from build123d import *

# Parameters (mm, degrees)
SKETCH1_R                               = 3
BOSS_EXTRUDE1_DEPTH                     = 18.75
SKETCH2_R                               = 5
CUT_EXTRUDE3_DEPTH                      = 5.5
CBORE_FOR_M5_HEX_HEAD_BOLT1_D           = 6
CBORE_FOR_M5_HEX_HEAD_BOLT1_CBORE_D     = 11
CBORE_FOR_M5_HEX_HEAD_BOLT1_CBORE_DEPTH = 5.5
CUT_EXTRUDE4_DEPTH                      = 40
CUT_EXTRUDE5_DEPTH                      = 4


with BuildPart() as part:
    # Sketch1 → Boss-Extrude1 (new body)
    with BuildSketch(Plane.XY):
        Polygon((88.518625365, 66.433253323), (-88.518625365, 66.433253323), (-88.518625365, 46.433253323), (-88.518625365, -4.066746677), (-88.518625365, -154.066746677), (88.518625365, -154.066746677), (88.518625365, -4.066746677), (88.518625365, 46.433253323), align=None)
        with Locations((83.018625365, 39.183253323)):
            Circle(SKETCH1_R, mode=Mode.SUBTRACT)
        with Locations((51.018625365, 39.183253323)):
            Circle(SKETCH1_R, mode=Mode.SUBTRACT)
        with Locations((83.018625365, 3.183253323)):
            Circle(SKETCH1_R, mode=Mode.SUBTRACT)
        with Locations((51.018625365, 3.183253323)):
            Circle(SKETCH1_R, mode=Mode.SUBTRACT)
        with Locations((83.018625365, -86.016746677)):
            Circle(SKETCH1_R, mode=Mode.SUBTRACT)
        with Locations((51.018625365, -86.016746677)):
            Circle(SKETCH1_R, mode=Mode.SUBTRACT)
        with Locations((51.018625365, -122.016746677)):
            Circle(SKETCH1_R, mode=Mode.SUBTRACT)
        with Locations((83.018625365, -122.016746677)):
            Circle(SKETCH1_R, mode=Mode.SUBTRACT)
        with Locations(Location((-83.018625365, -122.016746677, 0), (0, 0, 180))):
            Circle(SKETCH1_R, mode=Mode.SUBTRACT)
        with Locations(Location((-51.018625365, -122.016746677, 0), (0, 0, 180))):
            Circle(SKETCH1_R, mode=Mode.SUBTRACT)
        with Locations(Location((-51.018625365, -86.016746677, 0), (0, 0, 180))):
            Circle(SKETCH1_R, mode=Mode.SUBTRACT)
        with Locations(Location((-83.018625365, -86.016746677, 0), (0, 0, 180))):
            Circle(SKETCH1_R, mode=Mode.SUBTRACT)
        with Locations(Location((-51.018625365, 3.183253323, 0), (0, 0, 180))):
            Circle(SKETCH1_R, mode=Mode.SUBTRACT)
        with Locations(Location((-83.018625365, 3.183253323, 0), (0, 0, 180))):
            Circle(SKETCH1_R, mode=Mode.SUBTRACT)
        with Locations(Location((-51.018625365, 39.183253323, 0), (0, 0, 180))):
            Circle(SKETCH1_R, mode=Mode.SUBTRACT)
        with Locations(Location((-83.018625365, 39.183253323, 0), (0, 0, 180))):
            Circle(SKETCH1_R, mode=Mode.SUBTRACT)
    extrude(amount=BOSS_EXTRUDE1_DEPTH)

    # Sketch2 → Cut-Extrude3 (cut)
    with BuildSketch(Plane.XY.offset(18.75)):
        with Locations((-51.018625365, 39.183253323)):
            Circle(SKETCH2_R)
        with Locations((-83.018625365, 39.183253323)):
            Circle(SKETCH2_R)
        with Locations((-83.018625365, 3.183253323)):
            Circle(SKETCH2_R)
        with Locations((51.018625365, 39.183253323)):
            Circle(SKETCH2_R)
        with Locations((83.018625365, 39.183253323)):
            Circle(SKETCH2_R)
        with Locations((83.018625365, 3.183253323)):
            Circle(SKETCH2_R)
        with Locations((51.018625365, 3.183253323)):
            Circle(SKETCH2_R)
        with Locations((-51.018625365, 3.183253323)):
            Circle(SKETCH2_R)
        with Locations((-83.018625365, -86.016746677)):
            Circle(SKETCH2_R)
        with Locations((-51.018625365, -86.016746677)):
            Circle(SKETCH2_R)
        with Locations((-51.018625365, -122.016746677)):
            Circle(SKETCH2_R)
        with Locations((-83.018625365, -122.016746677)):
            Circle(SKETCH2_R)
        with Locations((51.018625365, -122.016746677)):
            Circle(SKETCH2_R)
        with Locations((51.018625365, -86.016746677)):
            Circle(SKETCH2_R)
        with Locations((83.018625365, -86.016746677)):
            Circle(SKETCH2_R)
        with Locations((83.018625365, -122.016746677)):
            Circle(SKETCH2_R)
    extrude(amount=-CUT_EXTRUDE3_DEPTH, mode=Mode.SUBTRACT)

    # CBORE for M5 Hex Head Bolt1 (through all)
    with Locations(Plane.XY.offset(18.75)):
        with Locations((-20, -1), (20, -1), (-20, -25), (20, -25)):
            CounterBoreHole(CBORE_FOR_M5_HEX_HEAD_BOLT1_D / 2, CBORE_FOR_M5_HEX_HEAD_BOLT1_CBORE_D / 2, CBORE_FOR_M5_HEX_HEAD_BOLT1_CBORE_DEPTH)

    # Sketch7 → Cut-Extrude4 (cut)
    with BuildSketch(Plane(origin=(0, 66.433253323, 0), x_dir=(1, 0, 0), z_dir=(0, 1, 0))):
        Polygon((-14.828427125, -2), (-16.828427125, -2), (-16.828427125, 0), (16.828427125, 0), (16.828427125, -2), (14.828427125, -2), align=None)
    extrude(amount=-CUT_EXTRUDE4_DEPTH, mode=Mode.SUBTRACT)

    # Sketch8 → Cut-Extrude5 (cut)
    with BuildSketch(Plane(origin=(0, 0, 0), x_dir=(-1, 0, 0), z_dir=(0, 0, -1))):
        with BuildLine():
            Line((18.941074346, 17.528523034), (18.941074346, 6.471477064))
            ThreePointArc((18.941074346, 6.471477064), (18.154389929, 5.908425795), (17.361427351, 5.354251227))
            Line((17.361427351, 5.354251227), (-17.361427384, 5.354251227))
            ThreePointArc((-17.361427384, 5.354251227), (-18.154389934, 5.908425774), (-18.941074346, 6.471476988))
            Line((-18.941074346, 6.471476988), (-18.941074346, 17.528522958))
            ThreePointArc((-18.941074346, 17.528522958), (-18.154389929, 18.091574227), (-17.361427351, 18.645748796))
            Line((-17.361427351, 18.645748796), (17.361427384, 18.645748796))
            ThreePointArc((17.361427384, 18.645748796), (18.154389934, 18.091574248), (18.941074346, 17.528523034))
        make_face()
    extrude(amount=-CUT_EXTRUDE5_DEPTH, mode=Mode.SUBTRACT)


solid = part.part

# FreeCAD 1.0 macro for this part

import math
import FreeCAD as App
import Part
import Sketcher

V = App.Vector


def add_polygon(sketch, points):
    """Adds a closed chain of lines whose ends are joined by coincident constraints."""
    first, n = sketch.GeometryCount, len(points)
    for a, b in zip(points, points[1:] + points[:1]):
        sketch.addGeometry(Part.LineSegment(App.Vector(*a, 0), App.Vector(*b, 0)), False)
    for i in range(n):
        sketch.addConstraint(Sketcher.Constraint("Coincident", first + i, 2, first + (i + 1) % n, 1))

doc = App.newDocument("Part")
body = doc.addObject("PartDesign::Body", "Body")

sketch1 = doc.addObject("Sketcher::SketchObject", "Sketch")
body.addObject(sketch1)
sketch1.AttachmentSupport = (doc.XY_Plane, [""])
sketch1.MapMode = "FlatFace"
add_polygon(sketch1, [(88.5, 66.4), (-88.5, 66.4), (-88.5, -154.1), (88.5, -154.1)])
sketch1.addGeometry(Part.Circle(V(-83, -122, 0), V(0, 0, 1), 3), False)
sketch1.addGeometry(Part.Circle(V(-51, -122, 0), V(0, 0, 1), 3), False)
sketch1.addGeometry(Part.Circle(V(-83, -86, 0), V(0, 0, 1), 3), False)
sketch1.addGeometry(Part.Circle(V(-51, -86, 0), V(0, 0, 1), 3), False)
sketch1.addGeometry(Part.Circle(V(51, -122, 0), V(0, 0, 1), 3), False)
sketch1.addGeometry(Part.Circle(V(83, -122, 0), V(0, 0, 1), 3), False)
sketch1.addGeometry(Part.Circle(V(51, -86, 0), V(0, 0, 1), 3), False)
sketch1.addGeometry(Part.Circle(V(83, -86, 0), V(0, 0, 1), 3), False)
sketch1.addGeometry(Part.Circle(V(-83, 3.2, 0), V(0, 0, 1), 3), False)
sketch1.addGeometry(Part.Circle(V(-51, 3.2, 0), V(0, 0, 1), 3), False)
sketch1.addGeometry(Part.Circle(V(-83, 39.2, 0), V(0, 0, 1), 3), False)
sketch1.addGeometry(Part.Circle(V(-51, 39.2, 0), V(0, 0, 1), 3), False)
sketch1.addGeometry(Part.Circle(V(51, 3.2, 0), V(0, 0, 1), 3), False)
sketch1.addGeometry(Part.Circle(V(83, 3.2, 0), V(0, 0, 1), 3), False)
sketch1.addGeometry(Part.Circle(V(51, 39.2, 0), V(0, 0, 1), 3), False)
sketch1.addGeometry(Part.Circle(V(83, 39.2, 0), V(0, 0, 1), 3), False)
sketch1.addConstraint([
    Sketcher.Constraint("Horizontal", 0),
    Sketcher.Constraint("Vertical", 1),
    Sketcher.Constraint("Horizontal", 2),
    Sketcher.Constraint("Vertical", 3),
    Sketcher.Constraint("Equal", 4, 5),
    Sketcher.Constraint("Equal", 5, 6),
    Sketcher.Constraint("Equal", 6, 7),
    Sketcher.Constraint("Equal", 7, 8),
    Sketcher.Constraint("Equal", 8, 9),
    Sketcher.Constraint("Equal", 9, 10),
    Sketcher.Constraint("Equal", 10, 11),
    Sketcher.Constraint("Equal", 11, 12),
    Sketcher.Constraint("Equal", 12, 13),
    Sketcher.Constraint("Equal", 13, 14),
    Sketcher.Constraint("Equal", 14, 15),
    Sketcher.Constraint("Equal", 15, 16),
    Sketcher.Constraint("Equal", 16, 17),
    Sketcher.Constraint("Equal", 17, 18),
    Sketcher.Constraint("Equal", 18, 19),
    Sketcher.Constraint("Symmetric", 5, 3, 8, 3, -2),
    Sketcher.Constraint("Symmetric", 4, 3, 9, 3, -2),
    Sketcher.Constraint("Symmetric", 7, 3, 10, 3, -2),
    Sketcher.Constraint("Symmetric", 6, 3, 11, 3, -2),
    Sketcher.Constraint("Symmetric", 13, 3, 16, 3, -2),
    Sketcher.Constraint("Symmetric", 12, 3, 17, 3, -2),
    Sketcher.Constraint("Symmetric", 15, 3, 18, 3, -2),
    Sketcher.Constraint("Symmetric", 14, 3, 19, 3, -2),
    Sketcher.Constraint("Horizontal", 4, 3, 5, 3),
    Sketcher.Constraint("Horizontal", 6, 3, 7, 3),
    Sketcher.Constraint("Horizontal", 12, 3, 13, 3),
    Sketcher.Constraint("Horizontal", 14, 3, 15, 3),
    Sketcher.Constraint("Vertical", 4, 3, 6, 3),
    Sketcher.Constraint("Vertical", 5, 3, 7, 3),
    Sketcher.Constraint("Vertical", 6, 3, 12, 3),
    Sketcher.Constraint("Vertical", 7, 3, 13, 3),
    Sketcher.Constraint("Vertical", 12, 3, 14, 3),
    Sketcher.Constraint("Vertical", 13, 3, 15, 3),
    Sketcher.Constraint("Diameter", 4, 6.0),
    Sketcher.Constraint("DistanceY", 1, 2, 1, 1, 220.5),
    Sketcher.Constraint("DistanceX", 4, 3, 5, 3, 32.0),
    Sketcher.Constraint("DistanceY", 4, 3, 6, 3, 36.0),
    Sketcher.Constraint("DistanceY", 12, 3, 14, 3, 36.0),
    Sketcher.Constraint("DistanceY", 6, 3, 12, 3, 89.2),
    Sketcher.Constraint("DistanceX", 0, 2, 14, 3, 5.5),
    Sketcher.Constraint("DistanceX", 9, 3, 2, 2, 5.5),
    Sketcher.Constraint("DistanceY", 14, 3, 0, 2, 27.25),
    Sketcher.Constraint("DistanceX", 0, 2, 0, 1, 177.037251),
    Sketcher.Constraint("DistanceY", 4, 3, -1, 1, 122.016747),
])
pad1 = doc.addObject("PartDesign::Pad", "Pad")
body.addObject(pad1)
pad1.Profile = sketch1
pad1.Length = 18.75

sketch2 = doc.addObject("Sketcher::SketchObject", "Sketch001")
body.addObject(sketch2)
sketch2.AttachmentSupport = (doc.XY_Plane, [""])
sketch2.MapMode = "FlatFace"
sketch2.AttachmentOffset = App.Placement(V(0, 0, 18.75), App.Rotation())
sketch2.addGeometry([
    Part.Circle(V(-51, 39, 0), V(0, 0, 1), 5),
    Part.Circle(V(-83, 39, 0), V(0, 0, 1), 5),
    Part.Circle(V(-83, 3, 0), V(0, 0, 1), 5),
    Part.Circle(V(51, 39, 0), V(0, 0, 1), 5),
    Part.Circle(V(83, 39, 0), V(0, 0, 1), 5),
    Part.Circle(V(83, 3, 0), V(0, 0, 1), 5),
    Part.Circle(V(51, 3, 0), V(0, 0, 1), 5),
    Part.Circle(V(-51, 3, 0), V(0, 0, 1), 5),
    Part.Circle(V(-83, -86, 0), V(0, 0, 1), 5),
    Part.Circle(V(-51, -86, 0), V(0, 0, 1), 5),
    Part.Circle(V(-51, -122, 0), V(0, 0, 1), 5),
    Part.Circle(V(-83, -122, 0), V(0, 0, 1), 5),
    Part.Circle(V(51, -122, 0), V(0, 0, 1), 5),
    Part.Circle(V(51, -86, 0), V(0, 0, 1), 5),
    Part.Circle(V(83, -86, 0), V(0, 0, 1), 5),
    Part.Circle(V(83, -122, 0), V(0, 0, 1), 5),
], False)
sketch2.addConstraint([
    Sketcher.Constraint("Equal", 0, 1),
    Sketcher.Constraint("Equal", 1, 2),
    Sketcher.Constraint("Equal", 2, 3),
    Sketcher.Constraint("Equal", 3, 4),
    Sketcher.Constraint("Equal", 4, 5),
    Sketcher.Constraint("Equal", 5, 6),
    Sketcher.Constraint("Equal", 6, 7),
    Sketcher.Constraint("Equal", 7, 8),
    Sketcher.Constraint("Equal", 8, 9),
    Sketcher.Constraint("Equal", 9, 10),
    Sketcher.Constraint("Equal", 10, 11),
    Sketcher.Constraint("Equal", 11, 12),
    Sketcher.Constraint("Equal", 12, 13),
    Sketcher.Constraint("Equal", 13, 14),
    Sketcher.Constraint("Equal", 14, 15),
    Sketcher.Constraint("Symmetric", 0, 3, 3, 3, -2),
    Sketcher.Constraint("Symmetric", 1, 3, 4, 3, -2),
    Sketcher.Constraint("Symmetric", 2, 3, 5, 3, -2),
    Sketcher.Constraint("Symmetric", 6, 3, 7, 3, -2),
    Sketcher.Constraint("Symmetric", 10, 3, 12, 3, -2),
    Sketcher.Constraint("Symmetric", 9, 3, 13, 3, -2),
    Sketcher.Constraint("Symmetric", 8, 3, 14, 3, -2),
    Sketcher.Constraint("Symmetric", 11, 3, 15, 3, -2),
    Sketcher.Constraint("Horizontal", 0, 3, 1, 3),
    Sketcher.Constraint("Horizontal", 5, 3, 6, 3),
    Sketcher.Constraint("Horizontal", 8, 3, 9, 3),
    Sketcher.Constraint("Horizontal", 10, 3, 11, 3),
    Sketcher.Constraint("Vertical", 1, 3, 2, 3),
    Sketcher.Constraint("Vertical", 3, 3, 6, 3),
    Sketcher.Constraint("Vertical", 2, 3, 8, 3),
    Sketcher.Constraint("Vertical", 7, 3, 9, 3),
    Sketcher.Constraint("Vertical", 9, 3, 10, 3),
    Sketcher.Constraint("Vertical", 8, 3, 11, 3),
    Sketcher.Constraint("Diameter", 0, 10.0),
    Sketcher.Constraint("DistanceX", 1, 3, 0, 3, 32.0),
    Sketcher.Constraint("DistanceY", 2, 3, 1, 3, 36.0),
    Sketcher.Constraint("DistanceY", 10, 3, 9, 3, 36.0),
    Sketcher.Constraint("DistanceY", 8, 3, 2, 3, 89.2),
    Sketcher.Constraint("DistanceX", 0, 3, 3, 3, 102.037251),
    Sketcher.Constraint("DistanceY", -1, 1, 0, 3, 39.183253),
])
pocket1 = doc.addObject("PartDesign::Pocket", "Pocket")
body.addObject(pocket1)
pocket1.Profile = sketch2
pocket1.Length = 5.5

sketch3 = doc.addObject("Sketcher::SketchObject", "Sketch002")
body.addObject(sketch3)
sketch3.AttachmentSupport = (doc.XY_Plane, [""])
sketch3.MapMode = "FlatFace"
sketch3.AttachmentOffset = App.Placement(V(0, 0, 18.75), App.Rotation())
sketch3.addGeometry([
    Part.Circle(V(-20, -1, 0), V(0, 0, 1), 3),
    Part.Circle(V(20, -1, 0), V(0, 0, 1), 3),
    Part.Circle(V(-20, -25, 0), V(0, 0, 1), 3),
    Part.Circle(V(20, -25, 0), V(0, 0, 1), 3),
], False)
sketch3.addConstraint([
    Sketcher.Constraint("Equal", 0, 1),
    Sketcher.Constraint("Equal", 1, 2),
    Sketcher.Constraint("Equal", 2, 3),
    Sketcher.Constraint("Symmetric", 0, 3, 1, 3, -2),
    Sketcher.Constraint("Symmetric", 2, 3, 3, 3, -2),
    Sketcher.Constraint("Vertical", 0, 3, 2, 3),
    Sketcher.Constraint("Diameter", 0, 6.0),
    Sketcher.Constraint("DistanceX", 0, 3, -1, 1, 20.0),
    Sketcher.Constraint("DistanceY", 0, 3, -1, 1, 1.0),
    Sketcher.Constraint("DistanceY", 2, 3, -1, 1, 25.0),
])
doc.recompute()
hole = doc.addObject("PartDesign::Hole", "Hole")
body.addObject(hole)
hole.Profile = sketch3
hole.ThreadType = "None"
hole.Diameter = 6
hole.DepthType = "ThroughAll"
hole.HoleCutType = "Counterbore"
hole.HoleCutDiameter = 11
hole.HoleCutDepth = 5.5

sketch4 = doc.addObject("Sketcher::SketchObject", "Sketch003")
body.addObject(sketch4)
sketch4.AttachmentSupport = (doc.XZ_Plane, [""])
sketch4.MapMode = "FlatFace"
sketch4.AttachmentOffset = App.Placement(V(0, 0, -66.433253), App.Rotation())
add_polygon(sketch4, [(-16.8, 2), (16.8, 2), (16.8, 0), (-16.8, 0)])
sketch4.addConstraint([
    Sketcher.Constraint("Horizontal", 0),
    Sketcher.Constraint("Vertical", 1),
    Sketcher.Constraint("Horizontal", 2),
    Sketcher.Constraint("Vertical", 3),
    Sketcher.Constraint("Symmetric", 1, 2, 2, 2, -1, 1),
    Sketcher.Constraint("DistanceY", 1, 2, 1, 1, 2.0),
    Sketcher.Constraint("DistanceX", 0, 1, 0, 2, 33.656854),
])
pocket2 = doc.addObject("PartDesign::Pocket", "Pocket001")
body.addObject(pocket2)
pocket2.Profile = sketch4
pocket2.Length = 40
pocket2.Reversed = True

sketch5 = doc.addObject("Sketcher::SketchObject", "Sketch004")
body.addObject(sketch5)
sketch5.AttachmentSupport = (doc.XY_Plane, [""])
sketch5.MapMode = "FlatFace"
sketch5.addGeometry([
    Part.LineSegment(V(-18.9, 6.5, 0), V(-18.9, 17.5, 0)),
    Part.ArcOfCircle(Part.Circle(V(31.6, -52.2, 0), V(0, 0, 1), 86.1), math.radians(124.63), math.radians(125.91)),
    Part.LineSegment(V(-17.4, 18.6, 0), V(17.4, 18.6, 0)),
    Part.ArcOfCircle(Part.Circle(V(-31.6, -52.2, 0), V(0, 0, 1), 86.1), math.radians(54.09), math.radians(55.37)),
    Part.LineSegment(V(18.9, 17.5, 0), V(18.9, 6.5, 0)),
    Part.ArcOfCircle(Part.Circle(V(-31.6, 76.2, 0), V(0, 0, 1), 86.1), math.radians(-55.37), math.radians(-54.09)),
    Part.LineSegment(V(17.4, 5.4, 0), V(-17.4, 5.4, 0)),
    Part.ArcOfCircle(Part.Circle(V(31.6, 76.2, 0), V(0, 0, 1), 86.1), math.radians(-125.91), math.radians(-124.63)),
], False)
sketch5.addConstraint([
    Sketcher.Constraint("Coincident", 0, 2, 1, 2),
    Sketcher.Constraint("Coincident", 1, 1, 2, 1),
    Sketcher.Constraint("Coincident", 2, 2, 3, 2),
    Sketcher.Constraint("Coincident", 3, 1, 4, 1),
    Sketcher.Constraint("Coincident", 4, 2, 5, 2),
    Sketcher.Constraint("Coincident", 5, 1, 6, 1),
    Sketcher.Constraint("Coincident", 6, 2, 7, 2),
    Sketcher.Constraint("Coincident", 7, 1, 0, 1),
    Sketcher.Constraint("Vertical", 0),
    Sketcher.Constraint("Horizontal", 2),
    Sketcher.Constraint("Vertical", 4),
    Sketcher.Constraint("Horizontal", 6),
    Sketcher.Constraint("Symmetric", 0, 2, 3, 1, -2),
    Sketcher.Constraint("Horizontal", 4, 2, 7, 1),
    Sketcher.Constraint("Vertical", 2, 2, 5, 1),
    Sketcher.Constraint("Equal", 2, 6),
    Sketcher.Constraint("Radius", 1, 86.079848),
    Sketcher.Constraint("Radius", 3, 86.07953),
    Sketcher.Constraint("Radius", 5, 86.079842),
    Sketcher.Constraint("Radius", 7, 86.079523),
    Sketcher.Constraint("DistanceY", 1, 1, 5, 3, 57.5414),
    Sketcher.Constraint("DistanceX", 0, 2, 2, 2, 36.302502),
    Sketcher.Constraint("DistanceX", 6, 2, 4, 2, 36.302502),
    Sketcher.Constraint("DistanceX", 2, 1, 2, 2, 34.722855),
    Sketcher.Constraint("DistanceY", 0, 1, 0, 2, 11.057046),
    Sketcher.Constraint("DistanceX", -1, 1, 1, 3, 31.55115),
    Sketcher.Constraint("DistanceY", -1, 1, 5, 3, 76.187148),
])
pocket3 = doc.addObject("PartDesign::Pocket", "Pocket002")
body.addObject(pocket3)
pocket3.Profile = sketch5
pocket3.Length = 4
pocket3.Reversed = True

doc.recompute()
